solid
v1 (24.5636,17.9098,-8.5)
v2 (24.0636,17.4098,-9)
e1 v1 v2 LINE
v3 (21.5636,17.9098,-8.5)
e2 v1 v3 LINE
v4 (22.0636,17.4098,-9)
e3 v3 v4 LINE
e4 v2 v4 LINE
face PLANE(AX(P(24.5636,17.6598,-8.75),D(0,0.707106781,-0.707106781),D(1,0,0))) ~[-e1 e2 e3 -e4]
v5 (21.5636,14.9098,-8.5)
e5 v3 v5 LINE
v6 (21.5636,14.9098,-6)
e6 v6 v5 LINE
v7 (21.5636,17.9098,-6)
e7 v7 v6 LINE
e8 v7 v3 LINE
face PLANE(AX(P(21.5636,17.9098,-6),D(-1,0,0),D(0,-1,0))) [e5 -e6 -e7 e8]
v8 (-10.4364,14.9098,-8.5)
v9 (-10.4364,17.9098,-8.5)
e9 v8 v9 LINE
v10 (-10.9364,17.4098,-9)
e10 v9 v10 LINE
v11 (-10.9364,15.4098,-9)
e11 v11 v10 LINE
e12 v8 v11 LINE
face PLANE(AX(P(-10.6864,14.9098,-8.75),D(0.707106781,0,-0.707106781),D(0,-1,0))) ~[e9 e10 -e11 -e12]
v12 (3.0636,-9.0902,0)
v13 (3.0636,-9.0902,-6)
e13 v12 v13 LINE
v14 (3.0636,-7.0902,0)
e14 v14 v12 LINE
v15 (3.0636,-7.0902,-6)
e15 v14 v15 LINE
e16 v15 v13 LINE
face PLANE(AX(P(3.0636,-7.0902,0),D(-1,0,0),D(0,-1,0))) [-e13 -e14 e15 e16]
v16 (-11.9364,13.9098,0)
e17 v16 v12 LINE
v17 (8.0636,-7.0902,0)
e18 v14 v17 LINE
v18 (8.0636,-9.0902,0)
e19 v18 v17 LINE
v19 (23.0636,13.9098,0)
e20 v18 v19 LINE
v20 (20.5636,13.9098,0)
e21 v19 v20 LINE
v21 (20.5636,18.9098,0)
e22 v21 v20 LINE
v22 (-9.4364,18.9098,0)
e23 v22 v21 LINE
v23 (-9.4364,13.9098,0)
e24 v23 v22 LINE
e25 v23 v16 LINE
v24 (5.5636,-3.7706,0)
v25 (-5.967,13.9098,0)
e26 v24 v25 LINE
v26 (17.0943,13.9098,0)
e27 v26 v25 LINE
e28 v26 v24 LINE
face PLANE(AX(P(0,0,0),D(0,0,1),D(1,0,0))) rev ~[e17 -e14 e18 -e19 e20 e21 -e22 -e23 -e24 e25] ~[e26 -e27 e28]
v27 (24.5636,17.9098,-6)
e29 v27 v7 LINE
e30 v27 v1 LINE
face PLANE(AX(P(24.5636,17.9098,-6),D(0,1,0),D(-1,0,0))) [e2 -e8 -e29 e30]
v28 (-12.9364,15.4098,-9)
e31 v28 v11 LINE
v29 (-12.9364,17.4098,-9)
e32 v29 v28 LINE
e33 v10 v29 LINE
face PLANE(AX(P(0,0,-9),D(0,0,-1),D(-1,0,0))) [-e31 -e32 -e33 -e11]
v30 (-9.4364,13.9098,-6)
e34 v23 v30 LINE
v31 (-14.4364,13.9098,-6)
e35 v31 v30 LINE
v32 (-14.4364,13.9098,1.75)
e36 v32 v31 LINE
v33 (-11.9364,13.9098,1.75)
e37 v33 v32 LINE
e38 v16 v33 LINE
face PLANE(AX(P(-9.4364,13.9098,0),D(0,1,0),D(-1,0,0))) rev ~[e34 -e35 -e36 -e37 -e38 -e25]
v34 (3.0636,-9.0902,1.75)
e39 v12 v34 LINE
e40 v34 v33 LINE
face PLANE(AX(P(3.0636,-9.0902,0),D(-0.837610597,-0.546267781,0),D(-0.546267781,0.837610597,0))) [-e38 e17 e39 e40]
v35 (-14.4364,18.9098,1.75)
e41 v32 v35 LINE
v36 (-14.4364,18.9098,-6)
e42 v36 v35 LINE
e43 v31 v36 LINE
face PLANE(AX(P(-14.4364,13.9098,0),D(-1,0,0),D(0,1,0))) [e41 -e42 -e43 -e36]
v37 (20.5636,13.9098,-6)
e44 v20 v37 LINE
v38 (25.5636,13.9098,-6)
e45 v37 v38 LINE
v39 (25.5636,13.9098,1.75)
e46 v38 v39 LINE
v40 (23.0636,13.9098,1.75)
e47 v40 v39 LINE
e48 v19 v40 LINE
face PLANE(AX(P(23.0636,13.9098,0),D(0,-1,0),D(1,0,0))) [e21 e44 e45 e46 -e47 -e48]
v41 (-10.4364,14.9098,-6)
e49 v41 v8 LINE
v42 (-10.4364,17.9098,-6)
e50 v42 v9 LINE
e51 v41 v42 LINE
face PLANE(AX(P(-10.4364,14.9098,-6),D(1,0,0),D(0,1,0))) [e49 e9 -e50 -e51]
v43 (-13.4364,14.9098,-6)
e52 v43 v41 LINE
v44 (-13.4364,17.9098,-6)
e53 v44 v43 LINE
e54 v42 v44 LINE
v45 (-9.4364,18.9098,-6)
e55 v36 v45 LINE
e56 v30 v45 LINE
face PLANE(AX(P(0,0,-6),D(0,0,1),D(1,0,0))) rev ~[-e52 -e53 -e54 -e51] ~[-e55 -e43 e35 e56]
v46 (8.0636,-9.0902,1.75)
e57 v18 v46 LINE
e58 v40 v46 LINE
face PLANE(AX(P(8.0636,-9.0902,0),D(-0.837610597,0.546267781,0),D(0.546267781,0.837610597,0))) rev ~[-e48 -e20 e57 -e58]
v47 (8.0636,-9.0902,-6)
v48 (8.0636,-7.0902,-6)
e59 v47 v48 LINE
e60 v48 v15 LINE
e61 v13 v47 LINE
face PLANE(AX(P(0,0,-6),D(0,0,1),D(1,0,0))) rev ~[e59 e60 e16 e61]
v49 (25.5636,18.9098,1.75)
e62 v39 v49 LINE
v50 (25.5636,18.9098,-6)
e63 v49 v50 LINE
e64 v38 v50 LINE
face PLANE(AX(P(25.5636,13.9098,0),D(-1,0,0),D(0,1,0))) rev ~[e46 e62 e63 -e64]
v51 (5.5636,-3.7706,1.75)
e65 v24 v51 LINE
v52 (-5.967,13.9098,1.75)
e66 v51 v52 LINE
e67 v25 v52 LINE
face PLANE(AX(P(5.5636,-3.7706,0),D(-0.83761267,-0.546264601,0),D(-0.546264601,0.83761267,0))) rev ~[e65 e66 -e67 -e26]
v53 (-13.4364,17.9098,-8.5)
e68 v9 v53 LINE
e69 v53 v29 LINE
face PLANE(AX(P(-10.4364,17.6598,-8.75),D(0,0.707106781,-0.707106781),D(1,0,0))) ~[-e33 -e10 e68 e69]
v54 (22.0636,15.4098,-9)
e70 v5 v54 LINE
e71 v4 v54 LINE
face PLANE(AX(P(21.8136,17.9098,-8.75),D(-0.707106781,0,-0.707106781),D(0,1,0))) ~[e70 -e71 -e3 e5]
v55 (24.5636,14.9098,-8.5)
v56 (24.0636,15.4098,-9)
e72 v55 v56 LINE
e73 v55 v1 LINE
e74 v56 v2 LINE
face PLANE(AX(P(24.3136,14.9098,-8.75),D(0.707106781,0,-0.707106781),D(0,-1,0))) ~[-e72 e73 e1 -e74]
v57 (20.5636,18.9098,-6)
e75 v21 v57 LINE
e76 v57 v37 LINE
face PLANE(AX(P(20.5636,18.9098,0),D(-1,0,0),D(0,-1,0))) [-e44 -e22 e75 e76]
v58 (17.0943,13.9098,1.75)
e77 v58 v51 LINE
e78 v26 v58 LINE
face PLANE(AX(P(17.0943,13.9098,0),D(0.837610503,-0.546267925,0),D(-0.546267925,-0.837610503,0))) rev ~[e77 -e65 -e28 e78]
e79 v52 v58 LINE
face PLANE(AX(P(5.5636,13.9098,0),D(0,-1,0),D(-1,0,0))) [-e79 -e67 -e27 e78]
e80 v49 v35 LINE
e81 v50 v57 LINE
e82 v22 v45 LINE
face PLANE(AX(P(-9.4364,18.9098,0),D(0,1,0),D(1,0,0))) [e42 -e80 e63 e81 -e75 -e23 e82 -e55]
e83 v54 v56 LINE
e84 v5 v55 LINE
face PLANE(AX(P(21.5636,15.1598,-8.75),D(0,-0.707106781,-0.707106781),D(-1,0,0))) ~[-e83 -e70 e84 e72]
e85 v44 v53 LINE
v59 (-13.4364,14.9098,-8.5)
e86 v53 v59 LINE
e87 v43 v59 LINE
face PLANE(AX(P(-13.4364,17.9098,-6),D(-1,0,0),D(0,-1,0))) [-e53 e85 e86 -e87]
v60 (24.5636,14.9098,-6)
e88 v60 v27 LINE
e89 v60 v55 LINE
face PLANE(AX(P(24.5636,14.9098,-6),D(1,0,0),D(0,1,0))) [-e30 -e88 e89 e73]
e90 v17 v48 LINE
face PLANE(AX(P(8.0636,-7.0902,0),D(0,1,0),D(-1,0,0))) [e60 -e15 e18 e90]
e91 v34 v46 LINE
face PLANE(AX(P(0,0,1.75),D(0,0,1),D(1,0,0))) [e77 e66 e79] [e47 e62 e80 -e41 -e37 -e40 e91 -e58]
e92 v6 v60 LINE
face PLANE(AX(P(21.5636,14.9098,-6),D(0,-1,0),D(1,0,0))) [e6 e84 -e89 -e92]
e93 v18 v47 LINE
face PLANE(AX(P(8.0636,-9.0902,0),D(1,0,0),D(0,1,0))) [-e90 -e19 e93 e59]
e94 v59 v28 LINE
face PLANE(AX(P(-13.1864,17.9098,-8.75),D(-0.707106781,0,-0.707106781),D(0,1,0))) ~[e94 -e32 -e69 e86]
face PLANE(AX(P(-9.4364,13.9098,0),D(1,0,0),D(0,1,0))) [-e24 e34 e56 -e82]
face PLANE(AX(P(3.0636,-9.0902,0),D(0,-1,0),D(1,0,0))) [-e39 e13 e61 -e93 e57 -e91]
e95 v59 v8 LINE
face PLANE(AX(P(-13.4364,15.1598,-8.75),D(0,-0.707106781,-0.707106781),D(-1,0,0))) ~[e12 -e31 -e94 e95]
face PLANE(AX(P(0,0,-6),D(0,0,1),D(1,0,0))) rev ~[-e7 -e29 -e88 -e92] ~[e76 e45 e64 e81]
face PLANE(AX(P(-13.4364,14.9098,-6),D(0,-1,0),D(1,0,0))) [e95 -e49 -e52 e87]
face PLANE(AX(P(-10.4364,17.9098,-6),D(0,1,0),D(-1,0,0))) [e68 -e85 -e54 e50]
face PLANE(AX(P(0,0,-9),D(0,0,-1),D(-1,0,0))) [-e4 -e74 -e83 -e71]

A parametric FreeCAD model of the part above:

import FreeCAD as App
import Part
import Sketcher


def edges_at(feature, points):
    """Names of the edges that pass closest to the given points."""
    edges = feature.Shape.Edges
    near = lambda p: min(range(len(edges)), key=lambda i: edges[i].distToShape(Part.Vertex(*p))[0])
    return sorted({f"Edge{near(p) + 1}" for p in points})


def add_polygon(sketch, points):
    """Adds a closed chain of lines whose ends are joined by coincident constraints."""
    first, n = sketch.GeometryCount, len(points)
    for a, b in zip(points, points[1:] + points[:1]):
        sketch.addGeometry(Part.LineSegment(App.Vector(*a, 0), App.Vector(*b, 0)), False)
    for i in range(n):
        sketch.addConstraint(Sketcher.Constraint("Coincident", first + i, 2, first + (i + 1) % n, 1))

doc = App.newDocument("Part")
params = doc.addObject("Spreadsheet::Sheet", "Params")
for row, (alias, value) in enumerate([
    ("sketch1_width", "5 mm"),
    ("sketch1_width2", "2.5 mm"),
    ("sketch1_width3", "40 mm"),
    ("pad1_length", "1.75 mm"),
    ("sketch2_width", "5 mm"),
    ("sketch2_height", "2 mm"),
    ("pad2_length", "6 mm"),
    ("sketch3_width", "5 mm"),
    ("pad3_length", "6 mm"),
    ("sketch4_width", "3 mm"),
    ("pad4_length", "3 mm"),
    ("chamfer_size", "0.5 mm"),
], start=1):
    params.set(f"A{row}", alias)
    params.set(f"B{row}", "=" + value)
    params.setAlias(f"B{row}", alias)

body = doc.addObject("PartDesign::Body", "Body")

sketch1 = body.newObject("Sketcher::SketchObject", "Sketch")
sketch1.AttachmentSupport = (doc.getObject("XY_Plane"), [""])
sketch1.MapMode = "FlatFace"
add_polygon(sketch1, [(3.1, -9.1), (8.1, -9.1), (23.1, 13.9), (25.6, 13.9), (25.6, 18.9), (-14.4, 18.9), (-14.4, 13.9), (-11.9, 13.9)])
add_polygon(sketch1, [(5.6, -3.8), (-6, 13.9), (17.1, 13.9)])
sketch1.addConstraint([
    Sketcher.Constraint("Horizontal", 0),
    Sketcher.Constraint("Horizontal", 2),
    Sketcher.Constraint("Vertical", 3),
    Sketcher.Constraint("Horizontal", 4),
    Sketcher.Constraint("Vertical", 5),
    Sketcher.Constraint("Horizontal", 6),
    Sketcher.Constraint("Horizontal", 9),
    Sketcher.Constraint("Parallel", 7, 8),
    Sketcher.Constraint("Parallel", 1, 10),
    Sketcher.Constraint("Horizontal", 2, 2, 5, 2),
    Sketcher.Constraint("Horizontal", 6, 2, 8, 2),
    Sketcher.Constraint("Equal", 2, 6),
    Sketcher.Constraint("Equal", 0, 3),
    Sketcher.Constraint("Equal", 1, 7),
    Sketcher.Constraint("DistanceX", 0, 1, 0, 2, 5.0),
    Sketcher.Constraint("DistanceX", 2, 1, 2, 2, 2.5),
    Sketcher.Constraint("DistanceY", 0, 2, 1, 2, 23.0),
    Sketcher.Constraint("DistanceX", 10, 2, 0, 2, 2.5),
    Sketcher.Constraint("DistanceX", 4, 2, 4, 1, 40.0),
    Sketcher.Constraint("Distance", 8, 21.108),
    Sketcher.Constraint("DistanceX", 8, 2, -1, 1, 5.967),
    Sketcher.Constraint("DistanceY", 0, 2, -1, 1, 9.0902),
])
sketch1.setExpression("Constraints[25]", "Params.sketch1_width")
sketch1.setExpression("Constraints[26]", "Params.sketch1_width2")
sketch1.setExpression("Constraints[29]", "Params.sketch1_width3")
pad1 = body.newObject("PartDesign::Pad", "Pad")
pad1.Profile = sketch1
pad1.setExpression("Length", "Params.pad1_length")

sketch2 = body.newObject("Sketcher::SketchObject", "Sketch001")
sketch2.AttachmentSupport = (doc.getObject("XY_Plane"), [""])
sketch2.MapMode = "FlatFace"
add_polygon(sketch2, [(8.1, -9.1), (8.1, -7.1), (3.1, -7.1), (3.1, -9.1)])
sketch2.addConstraint([
    Sketcher.Constraint("Vertical", 0),
    Sketcher.Constraint("Horizontal", 1),
    Sketcher.Constraint("Vertical", 2),
    Sketcher.Constraint("Horizontal", 3),
    Sketcher.Constraint("DistanceX", 1, 2, 1, 1, 5.0),
    Sketcher.Constraint("DistanceY", 0, 1, 0, 2, 2.0),
    Sketcher.Constraint("DistanceX", -1, 1, 0, 2, 8.0636),
    Sketcher.Constraint("DistanceY", 0, 2, -1, 1, 7.0902),
])
sketch2.setExpression("Constraints[8]", "Params.sketch2_width")
sketch2.setExpression("Constraints[9]", "Params.sketch2_height")
pad2 = body.newObject("PartDesign::Pad", "Pad001")
pad2.Profile = sketch2
pad2.setExpression("Length", "Params.pad2_length")
pad2.Reversed = True

sketch3 = body.newObject("Sketcher::SketchObject", "Sketch002")
sketch3.AttachmentSupport = (doc.getObject("XY_Plane"), [""])
sketch3.MapMode = "FlatFace"
add_polygon(sketch3, [(21, 19), (21, 14), (26, 14), (26, 19)])
add_polygon(sketch3, [(-14, 14), (-9, 14), (-9, 19), (-14, 19)])
sketch3.addConstraint([
    Sketcher.Constraint("Vertical", 0),
    Sketcher.Constraint("Horizontal", 1),
    Sketcher.Constraint("Vertical", 2),
    Sketcher.Constraint("Horizontal", 3),
    Sketcher.Constraint("Horizontal", 4),
    Sketcher.Constraint("Vertical", 5),
    Sketcher.Constraint("Horizontal", 6),
    Sketcher.Constraint("Vertical", 7),
    Sketcher.Constraint("Horizontal", 1, 2, 4, 2),
    Sketcher.Constraint("Horizontal", 3, 2, 5, 2),
    Sketcher.Constraint("Equal", 3, 4),
    Sketcher.Constraint("Equal", 6, 0),
    Sketcher.Constraint("DistanceX", 1, 1, 1, 2, 5.0),
    Sketcher.Constraint("DistanceX", 4, 2, 0, 2, 30.0),
    Sketcher.Constraint("DistanceX", -1, 1, 0, 2, 20.5636),
    Sketcher.Constraint("DistanceY", -1, 1, 0, 2, 13.9098),
])
sketch3.setExpression("Constraints[20]", "Params.sketch3_width")
pad3 = body.newObject("PartDesign::Pad", "Pad002")
pad3.Profile = sketch3
pad3.setExpression("Length", "Params.pad3_length")
pad3.Reversed = True

sketch4 = body.newObject("Sketcher::SketchObject", "Sketch003")
sketch4.AttachmentSupport = (doc.getObject("XY_Plane"), [""])
sketch4.MapMode = "FlatFace"
sketch4.AttachmentOffset = App.Placement(App.Vector(0, 0, -6), App.Rotation())
add_polygon(sketch4, [(24.6, 14.9), (21.6, 14.9), (21.6, 17.9), (24.6, 17.9)])
add_polygon(sketch4, [(-13.4, 14.9), (-13.4, 17.9), (-10.4, 17.9), (-10.4, 14.9)])
sketch4.addConstraint([
    Sketcher.Constraint("Horizontal", 0),
    Sketcher.Constraint("Vertical", 1),
    Sketcher.Constraint("Horizontal", 2),
    Sketcher.Constraint("Vertical", 3),
    Sketcher.Constraint("Vertical", 4),
    Sketcher.Constraint("Horizontal", 5),
    Sketcher.Constraint("Vertical", 6),
    Sketcher.Constraint("Horizontal", 7),
    Sketcher.Constraint("Horizontal", 2, 2, 4, 2),
    Sketcher.Constraint("Horizontal", 3, 2, 6, 2),
    Sketcher.Constraint("Equal", 2, 5),
    Sketcher.Constraint("Equal", 7, 1),
    Sketcher.Constraint("DistanceX", 0, 2, 0, 1, 3.0),
    Sketcher.Constraint("DistanceX", 4, 2, 1, 2, 35.0),
    Sketcher.Constraint("DistanceX", -1, 1, 0, 2, 21.5636),
    Sketcher.Constraint("DistanceY", -1, 1, 0, 2, 14.9098),
])
sketch4.setExpression("Constraints[20]", "Params.sketch4_width")
pad4 = body.newObject("PartDesign::Pad", "Pad003")
pad4.Profile = sketch4
pad4.setExpression("Length", "Params.pad4_length")
pad4.Reversed = True
doc.recompute()

chamfer = body.newObject("PartDesign::Chamfer", "Chamfer")
chamfer.Base = (pad4, edges_at(pad4, [
    (23.064, 17.91, -9),
    (24.564, 16.41, -9),
    (21.564, 16.41, -9),
    (23.064, 14.91, -9),
    (-13.436, 16.41, -9),
    (-11.936, 17.91, -9),
    (-10.436, 16.41, -9),
    (-11.936, 14.91, -9),
]))
chamfer.setExpression("Size", "Params.chamfer_size")

doc.recompute()
